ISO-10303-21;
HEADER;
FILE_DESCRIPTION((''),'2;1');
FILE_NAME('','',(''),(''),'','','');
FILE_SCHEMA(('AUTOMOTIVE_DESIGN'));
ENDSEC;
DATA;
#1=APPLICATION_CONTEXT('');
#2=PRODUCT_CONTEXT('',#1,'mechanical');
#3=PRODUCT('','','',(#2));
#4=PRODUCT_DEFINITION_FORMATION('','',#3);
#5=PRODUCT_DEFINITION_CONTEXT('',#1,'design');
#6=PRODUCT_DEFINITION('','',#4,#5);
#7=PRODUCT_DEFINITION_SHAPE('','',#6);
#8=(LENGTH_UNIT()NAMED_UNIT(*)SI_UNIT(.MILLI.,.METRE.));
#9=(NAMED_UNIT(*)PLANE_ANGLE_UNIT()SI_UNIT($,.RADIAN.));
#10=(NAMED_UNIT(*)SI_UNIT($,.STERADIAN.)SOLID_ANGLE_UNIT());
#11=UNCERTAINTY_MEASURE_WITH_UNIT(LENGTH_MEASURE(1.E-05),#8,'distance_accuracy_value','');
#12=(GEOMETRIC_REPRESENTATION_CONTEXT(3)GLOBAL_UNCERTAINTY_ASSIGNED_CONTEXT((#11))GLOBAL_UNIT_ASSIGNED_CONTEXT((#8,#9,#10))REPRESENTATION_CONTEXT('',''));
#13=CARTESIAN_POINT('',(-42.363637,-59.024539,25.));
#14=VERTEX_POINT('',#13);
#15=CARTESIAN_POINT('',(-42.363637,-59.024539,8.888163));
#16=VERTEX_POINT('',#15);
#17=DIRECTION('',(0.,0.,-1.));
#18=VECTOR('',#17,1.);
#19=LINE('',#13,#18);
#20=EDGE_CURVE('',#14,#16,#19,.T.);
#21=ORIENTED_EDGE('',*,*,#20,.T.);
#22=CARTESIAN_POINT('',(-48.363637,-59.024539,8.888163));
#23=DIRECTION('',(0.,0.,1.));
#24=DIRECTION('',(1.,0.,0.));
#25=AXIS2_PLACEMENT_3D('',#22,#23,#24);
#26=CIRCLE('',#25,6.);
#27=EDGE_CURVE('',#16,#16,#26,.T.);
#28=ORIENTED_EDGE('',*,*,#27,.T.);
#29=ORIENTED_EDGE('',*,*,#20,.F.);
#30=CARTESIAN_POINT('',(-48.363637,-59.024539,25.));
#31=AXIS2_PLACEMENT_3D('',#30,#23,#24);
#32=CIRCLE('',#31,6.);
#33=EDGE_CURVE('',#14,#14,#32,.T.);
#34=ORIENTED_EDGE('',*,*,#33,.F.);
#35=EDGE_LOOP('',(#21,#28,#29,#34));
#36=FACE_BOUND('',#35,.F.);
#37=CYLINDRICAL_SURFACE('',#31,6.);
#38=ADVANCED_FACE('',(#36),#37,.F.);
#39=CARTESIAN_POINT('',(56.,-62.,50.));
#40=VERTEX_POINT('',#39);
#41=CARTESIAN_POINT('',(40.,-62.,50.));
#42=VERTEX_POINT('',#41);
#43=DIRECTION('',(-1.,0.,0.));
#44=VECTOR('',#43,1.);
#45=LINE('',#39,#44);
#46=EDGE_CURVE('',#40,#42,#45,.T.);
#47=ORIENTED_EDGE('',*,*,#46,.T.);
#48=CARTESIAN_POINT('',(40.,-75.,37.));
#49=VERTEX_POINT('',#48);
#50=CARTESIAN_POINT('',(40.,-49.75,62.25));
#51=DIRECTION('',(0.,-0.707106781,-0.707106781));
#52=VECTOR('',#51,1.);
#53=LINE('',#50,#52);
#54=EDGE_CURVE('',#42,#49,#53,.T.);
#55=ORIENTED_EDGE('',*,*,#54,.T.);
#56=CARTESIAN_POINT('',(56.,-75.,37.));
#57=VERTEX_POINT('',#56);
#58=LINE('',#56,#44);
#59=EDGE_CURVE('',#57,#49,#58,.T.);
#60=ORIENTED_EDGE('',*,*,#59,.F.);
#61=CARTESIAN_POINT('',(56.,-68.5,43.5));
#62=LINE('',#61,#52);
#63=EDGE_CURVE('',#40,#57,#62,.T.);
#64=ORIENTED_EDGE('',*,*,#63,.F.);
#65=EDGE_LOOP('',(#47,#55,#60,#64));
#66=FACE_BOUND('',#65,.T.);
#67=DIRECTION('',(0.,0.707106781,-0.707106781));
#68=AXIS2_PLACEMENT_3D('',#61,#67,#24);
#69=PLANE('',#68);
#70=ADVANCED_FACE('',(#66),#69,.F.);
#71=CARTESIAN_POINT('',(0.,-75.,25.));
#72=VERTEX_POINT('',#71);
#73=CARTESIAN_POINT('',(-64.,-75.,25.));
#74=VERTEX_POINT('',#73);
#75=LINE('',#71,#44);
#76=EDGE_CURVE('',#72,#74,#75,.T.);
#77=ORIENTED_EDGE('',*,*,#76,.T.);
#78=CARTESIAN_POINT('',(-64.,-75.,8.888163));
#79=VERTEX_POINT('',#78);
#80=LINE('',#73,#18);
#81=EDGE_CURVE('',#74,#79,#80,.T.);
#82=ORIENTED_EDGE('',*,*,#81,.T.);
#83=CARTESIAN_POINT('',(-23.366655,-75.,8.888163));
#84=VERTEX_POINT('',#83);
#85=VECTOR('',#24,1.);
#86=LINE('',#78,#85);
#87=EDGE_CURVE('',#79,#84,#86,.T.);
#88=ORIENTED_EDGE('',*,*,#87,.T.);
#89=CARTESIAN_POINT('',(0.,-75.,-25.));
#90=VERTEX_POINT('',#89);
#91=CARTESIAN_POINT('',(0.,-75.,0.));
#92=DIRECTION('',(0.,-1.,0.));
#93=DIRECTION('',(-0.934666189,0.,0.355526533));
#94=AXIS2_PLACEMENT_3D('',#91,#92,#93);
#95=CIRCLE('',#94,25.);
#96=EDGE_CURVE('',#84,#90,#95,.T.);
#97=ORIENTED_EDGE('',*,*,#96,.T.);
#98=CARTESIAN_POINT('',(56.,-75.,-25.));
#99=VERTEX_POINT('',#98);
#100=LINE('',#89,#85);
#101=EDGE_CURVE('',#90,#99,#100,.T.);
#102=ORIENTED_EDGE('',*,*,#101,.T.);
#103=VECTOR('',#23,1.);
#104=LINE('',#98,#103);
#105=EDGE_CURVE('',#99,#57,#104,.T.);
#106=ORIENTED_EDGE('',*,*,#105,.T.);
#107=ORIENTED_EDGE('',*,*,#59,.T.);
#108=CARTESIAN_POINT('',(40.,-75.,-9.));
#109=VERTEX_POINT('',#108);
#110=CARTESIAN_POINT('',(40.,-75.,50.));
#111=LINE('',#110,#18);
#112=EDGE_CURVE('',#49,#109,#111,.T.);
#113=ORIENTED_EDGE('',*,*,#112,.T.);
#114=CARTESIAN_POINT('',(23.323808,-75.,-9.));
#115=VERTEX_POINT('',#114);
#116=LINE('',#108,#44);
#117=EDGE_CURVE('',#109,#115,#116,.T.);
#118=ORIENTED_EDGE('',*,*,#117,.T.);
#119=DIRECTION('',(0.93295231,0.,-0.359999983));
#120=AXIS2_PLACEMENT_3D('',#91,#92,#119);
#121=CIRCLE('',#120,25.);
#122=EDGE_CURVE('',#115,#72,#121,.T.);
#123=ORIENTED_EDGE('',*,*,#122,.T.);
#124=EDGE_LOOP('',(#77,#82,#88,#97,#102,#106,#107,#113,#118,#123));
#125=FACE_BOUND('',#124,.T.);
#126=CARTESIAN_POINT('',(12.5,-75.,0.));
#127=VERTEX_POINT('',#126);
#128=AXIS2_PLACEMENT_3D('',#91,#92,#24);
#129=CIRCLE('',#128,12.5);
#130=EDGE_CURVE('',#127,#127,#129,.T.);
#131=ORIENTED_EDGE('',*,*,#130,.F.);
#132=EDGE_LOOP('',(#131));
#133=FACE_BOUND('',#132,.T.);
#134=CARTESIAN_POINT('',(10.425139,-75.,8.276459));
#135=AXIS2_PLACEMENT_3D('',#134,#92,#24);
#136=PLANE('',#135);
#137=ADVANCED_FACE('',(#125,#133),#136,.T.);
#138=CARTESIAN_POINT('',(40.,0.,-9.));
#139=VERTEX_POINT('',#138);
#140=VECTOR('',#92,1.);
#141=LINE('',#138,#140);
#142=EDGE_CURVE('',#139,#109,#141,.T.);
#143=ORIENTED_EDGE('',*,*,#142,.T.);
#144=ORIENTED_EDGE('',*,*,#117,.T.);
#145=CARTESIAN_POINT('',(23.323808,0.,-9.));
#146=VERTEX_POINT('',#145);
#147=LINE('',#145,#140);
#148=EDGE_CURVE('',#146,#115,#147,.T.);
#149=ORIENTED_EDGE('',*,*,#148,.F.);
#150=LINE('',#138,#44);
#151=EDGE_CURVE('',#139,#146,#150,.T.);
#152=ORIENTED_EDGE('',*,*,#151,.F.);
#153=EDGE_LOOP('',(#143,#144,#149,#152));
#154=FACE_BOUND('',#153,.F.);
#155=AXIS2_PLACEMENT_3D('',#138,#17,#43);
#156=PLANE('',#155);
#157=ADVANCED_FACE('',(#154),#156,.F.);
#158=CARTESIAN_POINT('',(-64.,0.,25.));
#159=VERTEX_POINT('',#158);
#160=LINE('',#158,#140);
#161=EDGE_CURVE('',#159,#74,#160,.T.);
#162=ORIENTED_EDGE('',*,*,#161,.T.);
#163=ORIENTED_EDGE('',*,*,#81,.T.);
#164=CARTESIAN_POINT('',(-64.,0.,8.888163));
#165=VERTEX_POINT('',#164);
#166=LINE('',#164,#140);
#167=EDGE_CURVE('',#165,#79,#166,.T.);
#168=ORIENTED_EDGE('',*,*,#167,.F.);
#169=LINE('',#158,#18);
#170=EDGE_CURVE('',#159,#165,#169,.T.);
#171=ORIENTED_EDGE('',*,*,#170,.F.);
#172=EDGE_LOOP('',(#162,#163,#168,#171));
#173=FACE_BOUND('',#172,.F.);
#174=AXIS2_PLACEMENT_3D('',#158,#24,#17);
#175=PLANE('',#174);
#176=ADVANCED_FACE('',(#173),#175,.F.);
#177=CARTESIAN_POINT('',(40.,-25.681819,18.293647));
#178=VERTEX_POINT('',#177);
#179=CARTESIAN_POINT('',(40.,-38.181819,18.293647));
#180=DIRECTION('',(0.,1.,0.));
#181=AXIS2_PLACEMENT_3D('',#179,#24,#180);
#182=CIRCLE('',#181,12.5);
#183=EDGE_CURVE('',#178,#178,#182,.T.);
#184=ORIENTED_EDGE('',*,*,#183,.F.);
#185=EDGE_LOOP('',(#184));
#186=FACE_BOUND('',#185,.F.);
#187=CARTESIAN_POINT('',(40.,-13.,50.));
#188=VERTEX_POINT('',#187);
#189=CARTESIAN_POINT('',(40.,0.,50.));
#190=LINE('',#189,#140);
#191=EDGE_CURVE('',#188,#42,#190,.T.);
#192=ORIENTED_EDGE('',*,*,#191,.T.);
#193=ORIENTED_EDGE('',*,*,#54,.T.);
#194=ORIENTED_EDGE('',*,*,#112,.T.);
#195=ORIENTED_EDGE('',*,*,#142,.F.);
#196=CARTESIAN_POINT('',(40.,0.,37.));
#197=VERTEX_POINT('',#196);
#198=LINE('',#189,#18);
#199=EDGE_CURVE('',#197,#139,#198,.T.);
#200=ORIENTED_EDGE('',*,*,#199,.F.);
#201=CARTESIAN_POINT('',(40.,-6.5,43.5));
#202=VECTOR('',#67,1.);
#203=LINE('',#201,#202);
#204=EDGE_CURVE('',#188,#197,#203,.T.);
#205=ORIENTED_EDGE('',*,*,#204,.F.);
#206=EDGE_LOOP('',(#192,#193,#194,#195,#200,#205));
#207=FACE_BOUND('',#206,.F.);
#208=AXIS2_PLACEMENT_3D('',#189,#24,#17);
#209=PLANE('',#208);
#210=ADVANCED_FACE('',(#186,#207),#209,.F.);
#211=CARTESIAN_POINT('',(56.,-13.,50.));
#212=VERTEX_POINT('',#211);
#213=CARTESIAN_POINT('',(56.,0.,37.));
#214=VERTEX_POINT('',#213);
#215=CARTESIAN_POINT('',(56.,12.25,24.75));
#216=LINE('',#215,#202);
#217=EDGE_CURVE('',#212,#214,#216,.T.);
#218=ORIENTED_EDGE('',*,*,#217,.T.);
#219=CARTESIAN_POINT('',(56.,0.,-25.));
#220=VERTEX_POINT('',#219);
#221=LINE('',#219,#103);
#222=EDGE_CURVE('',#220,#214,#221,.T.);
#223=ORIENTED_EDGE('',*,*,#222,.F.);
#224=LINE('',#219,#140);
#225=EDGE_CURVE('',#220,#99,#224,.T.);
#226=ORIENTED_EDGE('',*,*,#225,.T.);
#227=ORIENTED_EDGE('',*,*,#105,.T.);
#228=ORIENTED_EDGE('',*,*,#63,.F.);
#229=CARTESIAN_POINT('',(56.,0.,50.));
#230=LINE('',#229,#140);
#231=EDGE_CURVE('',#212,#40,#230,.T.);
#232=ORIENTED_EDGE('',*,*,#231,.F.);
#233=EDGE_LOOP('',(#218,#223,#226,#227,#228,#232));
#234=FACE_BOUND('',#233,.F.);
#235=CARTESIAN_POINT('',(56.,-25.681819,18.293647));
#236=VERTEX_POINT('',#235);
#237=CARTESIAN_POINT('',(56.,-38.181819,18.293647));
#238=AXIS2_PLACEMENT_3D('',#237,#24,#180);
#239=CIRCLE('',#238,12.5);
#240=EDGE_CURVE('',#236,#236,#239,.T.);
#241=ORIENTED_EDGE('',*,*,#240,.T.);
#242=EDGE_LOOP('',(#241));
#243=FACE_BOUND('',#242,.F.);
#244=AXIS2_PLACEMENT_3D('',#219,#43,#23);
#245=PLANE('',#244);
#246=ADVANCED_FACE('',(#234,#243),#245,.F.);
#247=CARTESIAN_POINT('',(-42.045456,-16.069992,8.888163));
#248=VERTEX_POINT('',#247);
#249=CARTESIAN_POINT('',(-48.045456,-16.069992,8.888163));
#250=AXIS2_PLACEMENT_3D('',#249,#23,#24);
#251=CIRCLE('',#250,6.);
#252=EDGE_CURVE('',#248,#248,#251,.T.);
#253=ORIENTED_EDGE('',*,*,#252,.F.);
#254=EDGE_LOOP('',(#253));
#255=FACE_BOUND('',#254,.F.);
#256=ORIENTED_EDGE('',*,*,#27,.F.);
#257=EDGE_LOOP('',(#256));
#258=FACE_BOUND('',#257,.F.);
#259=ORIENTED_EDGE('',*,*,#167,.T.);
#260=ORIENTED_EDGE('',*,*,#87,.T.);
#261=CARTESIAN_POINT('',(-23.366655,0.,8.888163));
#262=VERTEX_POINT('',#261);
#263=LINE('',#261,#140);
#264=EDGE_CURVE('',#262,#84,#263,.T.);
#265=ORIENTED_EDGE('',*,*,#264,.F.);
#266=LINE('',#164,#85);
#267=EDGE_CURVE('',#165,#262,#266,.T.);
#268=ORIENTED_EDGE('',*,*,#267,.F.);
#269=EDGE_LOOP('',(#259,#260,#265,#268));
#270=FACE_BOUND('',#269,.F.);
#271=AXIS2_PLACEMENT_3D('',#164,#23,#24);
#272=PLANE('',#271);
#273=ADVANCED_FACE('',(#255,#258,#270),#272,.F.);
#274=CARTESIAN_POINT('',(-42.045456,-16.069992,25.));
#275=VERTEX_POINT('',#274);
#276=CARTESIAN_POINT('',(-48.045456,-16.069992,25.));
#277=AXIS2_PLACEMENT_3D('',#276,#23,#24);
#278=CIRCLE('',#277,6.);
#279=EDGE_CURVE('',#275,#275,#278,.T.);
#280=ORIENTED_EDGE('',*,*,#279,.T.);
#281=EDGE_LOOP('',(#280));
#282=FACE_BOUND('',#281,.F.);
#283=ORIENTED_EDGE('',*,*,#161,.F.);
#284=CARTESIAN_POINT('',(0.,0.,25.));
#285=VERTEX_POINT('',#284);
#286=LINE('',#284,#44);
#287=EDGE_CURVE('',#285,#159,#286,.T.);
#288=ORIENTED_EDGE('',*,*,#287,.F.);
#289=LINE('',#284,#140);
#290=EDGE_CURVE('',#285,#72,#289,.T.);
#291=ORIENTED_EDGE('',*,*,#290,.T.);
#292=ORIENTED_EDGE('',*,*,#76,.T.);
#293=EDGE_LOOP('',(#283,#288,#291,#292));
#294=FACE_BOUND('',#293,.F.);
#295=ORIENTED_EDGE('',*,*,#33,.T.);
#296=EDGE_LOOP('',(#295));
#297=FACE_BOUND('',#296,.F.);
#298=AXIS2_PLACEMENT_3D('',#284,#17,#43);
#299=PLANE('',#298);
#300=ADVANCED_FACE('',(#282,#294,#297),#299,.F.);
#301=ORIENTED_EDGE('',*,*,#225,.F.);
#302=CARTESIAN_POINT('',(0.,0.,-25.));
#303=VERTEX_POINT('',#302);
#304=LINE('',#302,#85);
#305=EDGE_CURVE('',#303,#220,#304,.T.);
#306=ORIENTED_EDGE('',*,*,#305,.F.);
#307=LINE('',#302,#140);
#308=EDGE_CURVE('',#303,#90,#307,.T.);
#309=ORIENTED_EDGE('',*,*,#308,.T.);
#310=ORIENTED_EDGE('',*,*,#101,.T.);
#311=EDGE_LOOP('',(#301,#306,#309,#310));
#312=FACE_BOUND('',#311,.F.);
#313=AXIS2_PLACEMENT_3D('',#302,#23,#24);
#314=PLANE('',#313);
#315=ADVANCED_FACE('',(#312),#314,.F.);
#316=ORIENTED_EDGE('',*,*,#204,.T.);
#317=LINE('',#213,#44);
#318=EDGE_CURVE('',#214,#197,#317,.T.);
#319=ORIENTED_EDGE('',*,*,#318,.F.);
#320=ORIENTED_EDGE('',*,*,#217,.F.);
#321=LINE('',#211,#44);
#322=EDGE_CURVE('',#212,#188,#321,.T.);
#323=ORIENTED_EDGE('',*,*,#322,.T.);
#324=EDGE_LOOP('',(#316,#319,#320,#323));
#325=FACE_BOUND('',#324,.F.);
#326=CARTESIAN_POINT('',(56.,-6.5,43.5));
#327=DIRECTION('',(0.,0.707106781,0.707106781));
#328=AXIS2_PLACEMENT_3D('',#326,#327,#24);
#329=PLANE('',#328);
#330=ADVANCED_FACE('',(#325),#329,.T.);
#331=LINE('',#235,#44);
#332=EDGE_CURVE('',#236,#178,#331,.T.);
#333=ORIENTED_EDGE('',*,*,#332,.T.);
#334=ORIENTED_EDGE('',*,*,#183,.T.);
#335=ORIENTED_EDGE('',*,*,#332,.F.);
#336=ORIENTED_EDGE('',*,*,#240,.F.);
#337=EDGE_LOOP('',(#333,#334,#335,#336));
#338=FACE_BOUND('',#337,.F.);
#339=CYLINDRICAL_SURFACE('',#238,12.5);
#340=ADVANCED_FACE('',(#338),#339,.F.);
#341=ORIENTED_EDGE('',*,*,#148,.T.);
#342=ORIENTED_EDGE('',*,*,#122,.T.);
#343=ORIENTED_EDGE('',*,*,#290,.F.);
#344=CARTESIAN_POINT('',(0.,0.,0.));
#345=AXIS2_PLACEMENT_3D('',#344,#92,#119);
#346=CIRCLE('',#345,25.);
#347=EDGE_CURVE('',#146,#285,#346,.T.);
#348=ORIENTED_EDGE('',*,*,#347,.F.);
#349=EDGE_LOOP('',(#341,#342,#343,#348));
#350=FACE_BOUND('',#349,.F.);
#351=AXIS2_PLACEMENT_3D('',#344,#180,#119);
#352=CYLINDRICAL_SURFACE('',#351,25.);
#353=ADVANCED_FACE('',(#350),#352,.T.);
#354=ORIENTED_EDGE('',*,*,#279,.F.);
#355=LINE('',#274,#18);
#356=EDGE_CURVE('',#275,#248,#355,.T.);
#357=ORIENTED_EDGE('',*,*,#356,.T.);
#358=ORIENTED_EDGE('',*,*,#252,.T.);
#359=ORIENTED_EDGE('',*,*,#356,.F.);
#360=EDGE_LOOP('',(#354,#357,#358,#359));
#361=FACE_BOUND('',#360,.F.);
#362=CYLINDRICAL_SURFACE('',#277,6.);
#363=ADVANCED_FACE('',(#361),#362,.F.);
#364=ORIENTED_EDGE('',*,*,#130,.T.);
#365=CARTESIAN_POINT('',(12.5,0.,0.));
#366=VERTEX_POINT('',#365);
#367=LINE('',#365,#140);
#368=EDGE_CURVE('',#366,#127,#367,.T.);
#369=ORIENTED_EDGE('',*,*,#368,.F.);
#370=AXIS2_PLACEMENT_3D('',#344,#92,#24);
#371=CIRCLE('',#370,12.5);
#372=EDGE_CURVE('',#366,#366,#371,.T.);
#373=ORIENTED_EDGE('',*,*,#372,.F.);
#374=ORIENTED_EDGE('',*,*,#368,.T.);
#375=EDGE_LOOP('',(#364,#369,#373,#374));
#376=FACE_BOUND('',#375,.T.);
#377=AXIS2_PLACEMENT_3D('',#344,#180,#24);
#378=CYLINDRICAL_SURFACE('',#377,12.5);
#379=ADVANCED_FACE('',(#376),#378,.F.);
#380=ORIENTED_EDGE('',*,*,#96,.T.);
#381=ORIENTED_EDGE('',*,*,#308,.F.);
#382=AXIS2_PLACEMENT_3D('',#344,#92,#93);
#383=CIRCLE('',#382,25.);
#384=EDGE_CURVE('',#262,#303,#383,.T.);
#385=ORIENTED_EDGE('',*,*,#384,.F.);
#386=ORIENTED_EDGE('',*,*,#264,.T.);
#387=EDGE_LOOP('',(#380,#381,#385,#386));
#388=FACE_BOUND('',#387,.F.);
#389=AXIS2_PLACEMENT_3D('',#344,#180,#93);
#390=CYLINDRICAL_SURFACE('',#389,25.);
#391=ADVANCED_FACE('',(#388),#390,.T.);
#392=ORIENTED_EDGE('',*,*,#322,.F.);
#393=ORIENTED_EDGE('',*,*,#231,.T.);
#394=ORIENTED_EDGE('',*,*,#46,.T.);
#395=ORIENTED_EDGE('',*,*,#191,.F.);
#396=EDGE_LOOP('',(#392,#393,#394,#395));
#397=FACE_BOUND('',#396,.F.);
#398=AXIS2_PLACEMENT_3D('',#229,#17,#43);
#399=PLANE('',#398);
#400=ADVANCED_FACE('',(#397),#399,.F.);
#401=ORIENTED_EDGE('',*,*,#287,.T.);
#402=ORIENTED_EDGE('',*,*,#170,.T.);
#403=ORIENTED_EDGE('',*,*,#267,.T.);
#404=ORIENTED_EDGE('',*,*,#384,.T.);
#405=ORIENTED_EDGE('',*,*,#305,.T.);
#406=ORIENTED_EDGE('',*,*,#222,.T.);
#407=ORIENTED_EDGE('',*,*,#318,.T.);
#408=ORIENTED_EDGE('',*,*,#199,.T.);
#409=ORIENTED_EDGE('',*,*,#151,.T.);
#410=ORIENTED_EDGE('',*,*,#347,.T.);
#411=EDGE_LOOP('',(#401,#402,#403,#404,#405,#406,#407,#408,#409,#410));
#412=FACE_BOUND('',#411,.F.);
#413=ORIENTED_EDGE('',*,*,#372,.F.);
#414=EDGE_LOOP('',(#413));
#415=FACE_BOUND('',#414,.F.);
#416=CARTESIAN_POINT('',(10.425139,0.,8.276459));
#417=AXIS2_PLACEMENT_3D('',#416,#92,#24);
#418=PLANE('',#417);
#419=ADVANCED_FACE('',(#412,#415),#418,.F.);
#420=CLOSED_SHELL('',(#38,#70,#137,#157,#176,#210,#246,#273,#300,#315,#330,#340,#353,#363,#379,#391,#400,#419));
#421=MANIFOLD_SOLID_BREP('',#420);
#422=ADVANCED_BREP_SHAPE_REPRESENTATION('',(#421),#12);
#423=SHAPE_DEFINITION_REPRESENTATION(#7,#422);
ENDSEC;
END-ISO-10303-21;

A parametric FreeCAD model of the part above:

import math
import FreeCAD as App
import Part
import Sketcher
Q = App.Units.Quantity


def edges_at(feature, points):
    """Names of the edges that pass closest to the given points."""
    edges = feature.Shape.Edges
    near = lambda p: min(range(len(edges)), key=lambda i: edges[i].distToShape(Part.Vertex(*p))[0])
    return sorted({f"Edge{near(p) + 1}" for p in points})

doc = App.newDocument("Part")
body = doc.addObject("PartDesign::Body", "Body")

sketch1 = doc.addObject("Sketcher::SketchObject", "Sketch")
body.addObject(sketch1)
sketch1.AttachmentSupport = (doc.XZ_Plane, [""])
sketch1.MapMode = "FlatFace"
sketch1.addGeometry([
    Part.ArcOfCircle(Part.Circle(App.Vector(0, 0, 0), App.Vector(0, 0, 1), 25), math.radians(-21), math.radians(90)),
    Part.LineSegment(App.Vector(0, 25, 0), App.Vector(-64, 25, 0)),
    Part.LineSegment(App.Vector(-64, 25, 0), App.Vector(-64, 9, 0)),
    Part.LineSegment(App.Vector(-64, 9, 0), App.Vector(-23, 9, 0)),
    Part.ArcOfCircle(Part.Circle(App.Vector(0, 0, 0), App.Vector(0, 0, 1), 25), math.radians(159), math.radians(270)),
    Part.LineSegment(App.Vector(0, -25, 0), App.Vector(56, -25, 0)),
    Part.LineSegment(App.Vector(56, -25, 0), App.Vector(56, 50, 0)),
    Part.LineSegment(App.Vector(56, 50, 0), App.Vector(40, 50, 0)),
    Part.LineSegment(App.Vector(40, 50, 0), App.Vector(40, -9, 0)),
    Part.LineSegment(App.Vector(40, -9, 0), App.Vector(23, -9, 0)),
    Part.Circle(App.Vector(0, 0, 0), App.Vector(0, 0, 1), 12),
], False)
sketch1.addConstraint([
    Sketcher.Constraint("Tangent", 0, 2, 1, 1),
    Sketcher.Constraint("Coincident", 1, 2, 2, 1),
    Sketcher.Constraint("Coincident", 2, 2, 3, 1),
    Sketcher.Constraint("Coincident", 3, 2, 4, 1),
    Sketcher.Constraint("Tangent", 4, 2, 5, 1),
    Sketcher.Constraint("Coincident", 5, 2, 6, 1),
    Sketcher.Constraint("Coincident", 6, 2, 7, 1),
    Sketcher.Constraint("Coincident", 7, 2, 8, 1),
    Sketcher.Constraint("Coincident", 8, 2, 9, 1),
    Sketcher.Constraint("Coincident", 9, 2, 0, 1),
    Sketcher.Constraint("Horizontal", 1),
    Sketcher.Constraint("Vertical", 2),
    Sketcher.Constraint("Horizontal", 3),
    Sketcher.Constraint("Horizontal", 5),
    Sketcher.Constraint("Vertical", 6),
    Sketcher.Constraint("Horizontal", 7),
    Sketcher.Constraint("Vertical", 8),
    Sketcher.Constraint("Horizontal", 9),
    Sketcher.Constraint("Coincident", 0, 3, -1, 1),
    Sketcher.Constraint("Coincident", 4, 3, -1, 1),
    Sketcher.Constraint("Coincident", 10, 3, -1, 1),
    Sketcher.Constraint("Equal", 0, 4),
    Sketcher.Constraint("Diameter", 10, Q("25 mm")),
    Sketcher.Constraint("Radius", 0, Q("25 mm")),
    Sketcher.Constraint("DistanceX", 1, 2, 1, 1, Q("64 mm")),
    Sketcher.Constraint("DistanceX", 5, 1, 5, 2, Q("56 mm")),
    Sketcher.Constraint("DistanceX", 7, 2, 7, 1, Q("16 mm")),
    Sketcher.Constraint("DistanceY", 6, 1, 6, 2, Q("75 mm")),
    Sketcher.Constraint("DistanceY", 8, 2, 8, 1, Q("59 mm")),
    Sketcher.Constraint("DistanceX", 3, 1, 3, 2, Q("40.633345 mm")),
])
pad1 = doc.addObject("PartDesign::Pad", "Pad")
body.addObject(pad1)
pad1.Profile = sketch1
pad1.Length = 75
doc.recompute()

chamfer = doc.addObject("PartDesign::Chamfer", "Chamfer")
body.addObject(chamfer)
chamfer.Base = (pad1, edges_at(pad1, [(48, -75, 50)]))
chamfer.Size = 13
doc.recompute()

chamfer2 = doc.addObject("PartDesign::Chamfer", "Chamfer001")
body.addObject(chamfer2)
chamfer2.Base = (chamfer, edges_at(chamfer, [(48, 0, 50)]))
chamfer2.Size = 13

sketch2 = doc.addObject("Sketcher::SketchObject", "Sketch001")
body.addObject(sketch2)
sketch2.AttachmentSupport = (doc.XY_Plane, [""])
sketch2.MapMode = "FlatFace"
sketch2.AttachmentOffset = App.Placement(App.Vector(0, 0, 25), App.Rotation())
sketch2.addGeometry([
    Part.Circle(App.Vector(-48, -16, 0), App.Vector(0, 0, 1), 6),
    Part.Circle(App.Vector(-48, -59, 0), App.Vector(0, 0, 1), 6),
], False)
sketch2.addConstraint([
    Sketcher.Constraint("Equal", 0, 1),
    Sketcher.Constraint("Diameter", 0, Q("12 mm")),
    Sketcher.Constraint("DistanceY", 0, 3, -1, 1, Q("16.069992 mm")),
    Sketcher.Constraint("DistanceY", 1, 3, -1, 1, Q("59.024539 mm")),
    Sketcher.Constraint("DistanceX", 1, 3, 0, 3, Q("0.318181 mm")),
    Sketcher.Constraint("DistanceX", 0, 3, -1, 1, Q("48.045456 mm")),
])
pocket1 = doc.addObject("PartDesign::Pocket", "Pocket")
body.addObject(pocket1)
pocket1.Profile = sketch2
pocket1.Length = 25

sketch3 = doc.addObject("Sketcher::SketchObject", "Sketch002")
body.addObject(sketch3)
sketch3.AttachmentSupport = (doc.YZ_Plane, [""])
sketch3.MapMode = "FlatFace"
sketch3.AttachmentOffset = App.Placement(App.Vector(0, 0, 56), App.Rotation())
sketch3.addGeometry(Part.Circle(App.Vector(-38, 18, 0), App.Vector(0, 0, 1), 12), False)
sketch3.addConstraint([
    Sketcher.Constraint("Diameter", 0, Q("25 mm")),
    Sketcher.Constraint("DistanceX", 0, 3, -1, 1, Q("38.181819 mm")),
    Sketcher.Constraint("DistanceY", -1, 1, 0, 3, Q("18.293647 mm")),
])
pocket2 = doc.addObject("PartDesign::Pocket", "Pocket001")
body.addObject(pocket2)
pocket2.Profile = sketch3
pocket2.Length = 25

doc.recompute()
